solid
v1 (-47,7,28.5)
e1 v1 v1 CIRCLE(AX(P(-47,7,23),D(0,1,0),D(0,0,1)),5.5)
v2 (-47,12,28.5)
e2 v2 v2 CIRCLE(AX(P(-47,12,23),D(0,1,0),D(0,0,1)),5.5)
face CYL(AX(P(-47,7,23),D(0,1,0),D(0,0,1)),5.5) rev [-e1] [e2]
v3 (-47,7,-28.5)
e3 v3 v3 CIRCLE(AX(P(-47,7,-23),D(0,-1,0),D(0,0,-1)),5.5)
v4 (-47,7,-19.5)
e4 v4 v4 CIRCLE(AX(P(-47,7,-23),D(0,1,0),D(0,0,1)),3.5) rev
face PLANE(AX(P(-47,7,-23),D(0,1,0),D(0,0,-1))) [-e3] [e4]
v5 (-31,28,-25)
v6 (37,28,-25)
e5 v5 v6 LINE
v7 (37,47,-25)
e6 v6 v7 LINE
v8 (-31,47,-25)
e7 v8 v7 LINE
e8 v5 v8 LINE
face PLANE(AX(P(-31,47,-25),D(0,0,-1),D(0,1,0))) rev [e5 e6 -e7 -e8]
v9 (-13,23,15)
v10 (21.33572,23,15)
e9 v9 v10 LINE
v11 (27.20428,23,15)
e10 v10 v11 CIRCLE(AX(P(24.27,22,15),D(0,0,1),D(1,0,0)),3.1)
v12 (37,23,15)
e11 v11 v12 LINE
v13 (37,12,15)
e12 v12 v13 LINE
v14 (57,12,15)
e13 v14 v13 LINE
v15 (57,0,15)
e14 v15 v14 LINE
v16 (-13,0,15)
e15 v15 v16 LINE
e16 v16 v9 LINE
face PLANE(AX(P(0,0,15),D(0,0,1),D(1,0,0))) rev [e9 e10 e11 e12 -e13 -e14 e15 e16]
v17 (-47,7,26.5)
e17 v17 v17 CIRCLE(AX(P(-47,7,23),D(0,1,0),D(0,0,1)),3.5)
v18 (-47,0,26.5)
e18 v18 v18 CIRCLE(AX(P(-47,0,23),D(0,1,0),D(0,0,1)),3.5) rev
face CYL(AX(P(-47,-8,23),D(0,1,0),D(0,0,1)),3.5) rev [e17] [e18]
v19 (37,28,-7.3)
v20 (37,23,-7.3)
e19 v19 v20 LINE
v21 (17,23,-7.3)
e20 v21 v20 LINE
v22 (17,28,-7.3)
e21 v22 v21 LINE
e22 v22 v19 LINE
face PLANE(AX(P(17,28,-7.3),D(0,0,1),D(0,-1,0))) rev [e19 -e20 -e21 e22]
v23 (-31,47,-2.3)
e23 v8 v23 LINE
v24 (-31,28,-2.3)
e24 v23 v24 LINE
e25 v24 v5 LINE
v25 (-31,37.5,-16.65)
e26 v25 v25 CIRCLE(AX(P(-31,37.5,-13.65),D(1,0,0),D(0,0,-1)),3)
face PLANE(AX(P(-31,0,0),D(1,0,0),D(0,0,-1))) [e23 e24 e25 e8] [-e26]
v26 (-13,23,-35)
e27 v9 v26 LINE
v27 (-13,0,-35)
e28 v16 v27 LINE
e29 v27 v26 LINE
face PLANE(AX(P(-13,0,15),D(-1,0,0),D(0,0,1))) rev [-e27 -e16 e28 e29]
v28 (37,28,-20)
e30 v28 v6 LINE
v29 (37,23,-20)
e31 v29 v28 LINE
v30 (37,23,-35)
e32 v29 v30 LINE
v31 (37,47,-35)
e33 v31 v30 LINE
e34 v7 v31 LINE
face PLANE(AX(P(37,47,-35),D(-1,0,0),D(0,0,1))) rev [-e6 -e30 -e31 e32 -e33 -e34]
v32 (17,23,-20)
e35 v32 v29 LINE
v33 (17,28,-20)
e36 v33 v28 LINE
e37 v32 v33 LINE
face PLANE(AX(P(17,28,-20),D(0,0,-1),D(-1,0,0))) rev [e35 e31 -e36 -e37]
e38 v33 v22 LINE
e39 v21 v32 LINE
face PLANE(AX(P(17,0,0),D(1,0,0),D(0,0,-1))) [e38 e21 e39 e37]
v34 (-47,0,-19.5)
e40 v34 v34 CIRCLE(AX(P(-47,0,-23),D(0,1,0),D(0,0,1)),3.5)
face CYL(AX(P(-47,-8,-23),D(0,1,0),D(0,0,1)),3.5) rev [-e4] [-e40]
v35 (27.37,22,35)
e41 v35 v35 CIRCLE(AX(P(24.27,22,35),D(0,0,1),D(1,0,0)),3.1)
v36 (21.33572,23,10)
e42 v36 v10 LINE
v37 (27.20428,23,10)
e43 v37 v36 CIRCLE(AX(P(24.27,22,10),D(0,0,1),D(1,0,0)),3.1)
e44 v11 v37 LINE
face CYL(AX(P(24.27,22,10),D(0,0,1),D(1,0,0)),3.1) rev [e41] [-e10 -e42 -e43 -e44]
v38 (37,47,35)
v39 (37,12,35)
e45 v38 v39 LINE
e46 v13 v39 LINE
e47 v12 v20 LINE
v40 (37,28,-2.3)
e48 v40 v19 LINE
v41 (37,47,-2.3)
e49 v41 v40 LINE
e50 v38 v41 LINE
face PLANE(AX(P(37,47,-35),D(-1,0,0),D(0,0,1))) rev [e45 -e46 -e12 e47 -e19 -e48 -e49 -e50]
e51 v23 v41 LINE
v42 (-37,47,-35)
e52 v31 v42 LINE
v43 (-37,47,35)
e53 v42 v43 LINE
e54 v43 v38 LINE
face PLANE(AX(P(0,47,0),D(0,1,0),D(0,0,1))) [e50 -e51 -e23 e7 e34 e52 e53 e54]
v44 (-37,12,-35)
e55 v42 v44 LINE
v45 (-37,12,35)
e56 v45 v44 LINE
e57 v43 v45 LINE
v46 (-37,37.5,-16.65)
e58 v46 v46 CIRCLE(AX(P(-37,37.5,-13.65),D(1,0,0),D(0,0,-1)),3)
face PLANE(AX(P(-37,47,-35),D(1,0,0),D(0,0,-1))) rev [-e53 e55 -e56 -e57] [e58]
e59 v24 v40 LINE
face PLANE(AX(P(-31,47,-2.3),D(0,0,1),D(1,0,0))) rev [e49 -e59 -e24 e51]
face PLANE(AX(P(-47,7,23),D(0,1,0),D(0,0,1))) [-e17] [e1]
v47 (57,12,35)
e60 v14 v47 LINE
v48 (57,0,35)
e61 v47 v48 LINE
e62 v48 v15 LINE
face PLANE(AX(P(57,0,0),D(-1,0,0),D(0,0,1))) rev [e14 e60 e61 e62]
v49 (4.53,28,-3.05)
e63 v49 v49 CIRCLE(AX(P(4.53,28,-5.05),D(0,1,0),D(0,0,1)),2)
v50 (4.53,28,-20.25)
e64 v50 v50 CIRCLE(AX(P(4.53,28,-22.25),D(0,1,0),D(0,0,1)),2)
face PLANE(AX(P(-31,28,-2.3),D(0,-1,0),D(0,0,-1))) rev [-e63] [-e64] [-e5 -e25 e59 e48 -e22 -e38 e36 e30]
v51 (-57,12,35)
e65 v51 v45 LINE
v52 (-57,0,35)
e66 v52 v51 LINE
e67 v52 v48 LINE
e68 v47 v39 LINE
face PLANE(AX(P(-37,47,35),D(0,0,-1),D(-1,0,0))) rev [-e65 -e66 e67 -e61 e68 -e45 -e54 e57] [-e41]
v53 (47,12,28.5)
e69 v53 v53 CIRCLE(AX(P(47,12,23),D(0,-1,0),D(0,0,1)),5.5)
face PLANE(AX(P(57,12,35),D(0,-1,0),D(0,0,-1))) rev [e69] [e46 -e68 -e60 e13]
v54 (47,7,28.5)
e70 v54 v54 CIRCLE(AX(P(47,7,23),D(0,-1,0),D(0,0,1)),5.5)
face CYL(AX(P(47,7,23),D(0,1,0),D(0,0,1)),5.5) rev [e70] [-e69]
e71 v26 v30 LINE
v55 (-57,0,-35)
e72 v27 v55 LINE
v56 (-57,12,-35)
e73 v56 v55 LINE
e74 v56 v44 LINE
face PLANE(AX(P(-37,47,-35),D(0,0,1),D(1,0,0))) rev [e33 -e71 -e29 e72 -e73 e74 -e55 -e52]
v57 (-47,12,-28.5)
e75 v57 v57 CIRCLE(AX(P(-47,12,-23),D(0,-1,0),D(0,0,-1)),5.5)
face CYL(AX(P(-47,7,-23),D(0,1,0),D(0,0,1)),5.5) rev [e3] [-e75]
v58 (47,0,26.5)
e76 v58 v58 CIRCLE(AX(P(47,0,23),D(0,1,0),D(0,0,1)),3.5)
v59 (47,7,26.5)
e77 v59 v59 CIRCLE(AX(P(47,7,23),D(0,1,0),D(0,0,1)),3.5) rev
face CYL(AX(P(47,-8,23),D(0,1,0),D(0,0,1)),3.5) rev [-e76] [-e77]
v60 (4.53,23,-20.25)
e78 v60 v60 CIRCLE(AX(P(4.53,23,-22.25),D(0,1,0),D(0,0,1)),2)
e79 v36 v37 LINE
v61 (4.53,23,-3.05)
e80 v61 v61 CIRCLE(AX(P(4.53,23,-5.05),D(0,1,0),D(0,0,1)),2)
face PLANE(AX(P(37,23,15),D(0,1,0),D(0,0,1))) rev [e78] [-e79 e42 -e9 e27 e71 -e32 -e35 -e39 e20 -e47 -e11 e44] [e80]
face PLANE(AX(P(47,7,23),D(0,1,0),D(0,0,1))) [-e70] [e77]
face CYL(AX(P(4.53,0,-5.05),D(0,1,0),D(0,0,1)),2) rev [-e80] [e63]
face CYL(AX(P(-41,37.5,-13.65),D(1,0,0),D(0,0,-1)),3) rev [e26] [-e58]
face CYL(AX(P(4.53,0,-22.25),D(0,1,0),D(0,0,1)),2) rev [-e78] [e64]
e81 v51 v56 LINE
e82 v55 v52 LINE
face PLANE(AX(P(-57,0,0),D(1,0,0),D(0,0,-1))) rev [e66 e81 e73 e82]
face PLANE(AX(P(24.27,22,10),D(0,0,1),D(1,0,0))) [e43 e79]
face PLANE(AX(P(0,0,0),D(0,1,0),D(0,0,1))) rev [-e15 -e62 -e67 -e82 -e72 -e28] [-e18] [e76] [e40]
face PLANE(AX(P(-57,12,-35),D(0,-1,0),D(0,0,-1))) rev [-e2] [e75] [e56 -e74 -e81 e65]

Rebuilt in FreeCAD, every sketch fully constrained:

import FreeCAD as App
import Part
import Sketcher

V = App.Vector
Q = App.Units.Quantity


def add_polygon(sketch, points):
    """Adds a closed chain of lines whose ends are joined by coincident constraints."""
    first, n = sketch.GeometryCount, len(points)
    for a, b in zip(points, points[1:] + points[:1]):
        sketch.addGeometry(Part.LineSegment(App.Vector(*a, 0), App.Vector(*b, 0)), False)
    for i in range(n):
        sketch.addConstraint(Sketcher.Constraint("Coincident", first + i, 2, first + (i + 1) % n, 1))

doc = App.newDocument("Part")
body = doc.addObject("PartDesign::Body", "Body")

sketch1 = body.newObject("Sketcher::SketchObject", "Sketch")
sketch1.AttachmentSupport = (doc.getObject("XZ_Plane"), [""])
sketch1.MapMode = "FlatFace"
add_polygon(sketch1, [(-37, -35), (-37, 35), (37, 35), (37, -35)])
sketch1.addConstraint([
    Sketcher.Constraint("Vertical", 0),
    Sketcher.Constraint("Horizontal", 1),
    Sketcher.Constraint("Vertical", 2),
    Sketcher.Constraint("Horizontal", 3),
    Sketcher.Constraint("Symmetric", 0, 2, 2, 2, -1, 1),
    Sketcher.Constraint("DistanceX", 1, 1, 1, 2, Q("74 mm")),
    Sketcher.Constraint("DistanceY", 0, 1, 0, 2, Q("70 mm")),
])
pad1 = body.newObject("PartDesign::Pad", "Pad")
pad1.Profile = sketch1
pad1.Length = 47
pad1.Reversed = True

sketch2 = body.newObject("Sketcher::SketchObject", "Sketch001")
sketch2.AttachmentSupport = (doc.getObject("YZ_Plane"), [""])
sketch2.MapMode = "FlatFace"
sketch2.AttachmentOffset = App.Placement(V(0, 0, 37), App.Rotation())
add_polygon(sketch2, [(47, -2), (28, -2), (28, -25), (47, -25)])
sketch2.addConstraint([
    Sketcher.Constraint("Horizontal", 0),
    Sketcher.Constraint("Vertical", 1),
    Sketcher.Constraint("Horizontal", 2),
    Sketcher.Constraint("Vertical", 3),
    Sketcher.Constraint("DistanceX", 0, 2, 0, 1, Q("19 mm")),
    Sketcher.Constraint("DistanceY", 1, 2, 1, 1, Q("22.7 mm")),
    Sketcher.Constraint("DistanceX", -1, 1, 0, 2, Q("28 mm")),
    Sketcher.Constraint("DistanceY", 1, 2, -1, 1, Q("25 mm")),
])
pocket1 = body.newObject("PartDesign::Pocket", "Pocket")
pocket1.Profile = sketch2
pocket1.Length = 68

sketch3 = body.newObject("Sketcher::SketchObject", "Sketch002")
sketch3.AttachmentSupport = (doc.getObject("XY_Plane"), [""])
sketch3.MapMode = "FlatFace"
sketch3.AttachmentOffset = App.Placement(V(0, 0, -35), App.Rotation())
add_polygon(sketch3, [(37, 23), (37, 0), (-13, 0), (-13, 23)])
sketch3.addConstraint([
    Sketcher.Constraint("Vertical", 0),
    Sketcher.Constraint("Horizontal", 1),
    Sketcher.Constraint("Vertical", 2),
    Sketcher.Constraint("Horizontal", 3),
    Sketcher.Constraint("PointOnObject", 0, 2, -1),
    Sketcher.Constraint("DistanceX", 1, 2, 1, 1, Q("50 mm")),
    Sketcher.Constraint("DistanceY", 0, 2, 0, 1, Q("23 mm")),
    Sketcher.Constraint("DistanceX", -1, 1, 0, 2, Q("37 mm")),
])
pocket2 = body.newObject("PartDesign::Pocket", "Pocket001")
pocket2.Profile = sketch3
pocket2.Length = 50
pocket2.Reversed = True

sketch4 = body.newObject("Sketcher::SketchObject", "Sketch003")
sketch4.AttachmentSupport = (doc.getObject("XY_Plane"), [""])
sketch4.MapMode = "FlatFace"
sketch4.AttachmentOffset = App.Placement(V(0, 0, 35), App.Rotation())
sketch4.addGeometry(Part.Circle(V(24.3, 22, 0), V(0, 0, 1), 3.1), False)
sketch4.addConstraint([
    Sketcher.Constraint("Diameter", 0, Q("6.2 mm")),
    Sketcher.Constraint("DistanceY", -1, 1, 0, 3, Q("22 mm")),
    Sketcher.Constraint("DistanceX", -1, 1, 0, 3, Q("24.27 mm")),
])
pocket3 = body.newObject("PartDesign::Pocket", "Pocket002")
pocket3.Profile = sketch4
pocket3.Length = 25

sketch5 = body.newObject("Sketcher::SketchObject", "Sketch004")
sketch5.AttachmentSupport = (doc.getObject("YZ_Plane"), [""])
sketch5.MapMode = "FlatFace"
sketch5.AttachmentOffset = App.Placement(V(0, 0, 37), App.Rotation())
add_polygon(sketch5, [(12, 35), (0, 35), (0, 15), (12, 15)])
sketch5.addConstraint([
    Sketcher.Constraint("Horizontal", 0),
    Sketcher.Constraint("Vertical", 1),
    Sketcher.Constraint("Horizontal", 2),
    Sketcher.Constraint("Vertical", 3),
    Sketcher.Constraint("PointOnObject", 0, 2, -2),
    Sketcher.Constraint("DistanceX", 0, 2, 0, 1, Q("12 mm")),
    Sketcher.Constraint("DistanceY", 1, 2, 1, 1, Q("20 mm")),
    Sketcher.Constraint("DistanceY", -1, 1, 0, 2, Q("35 mm")),
])
pad2 = body.newObject("PartDesign::Pad", "Pad001")
pad2.Profile = sketch5
pad2.Length = 20

sketch6 = body.newObject("Sketcher::SketchObject", "Sketch005")
sketch6.AttachmentSupport = (doc.getObject("YZ_Plane"), [""])
sketch6.MapMode = "FlatFace"
sketch6.AttachmentOffset = App.Placement(V(0, 0, -37), App.Rotation())
add_polygon(sketch6, [(12, -35), (0, -35), (0, 35), (12, 35)])
sketch6.addConstraint([
    Sketcher.Constraint("Horizontal", 0),
    Sketcher.Constraint("Vertical", 1),
    Sketcher.Constraint("Horizontal", 2),
    Sketcher.Constraint("Vertical", 3),
    Sketcher.Constraint("Symmetric", 0, 2, 1, 2, -1, 1),
    Sketcher.Constraint("DistanceX", 0, 2, 0, 1, Q("12 mm")),
    Sketcher.Constraint("DistanceY", 1, 1, 1, 2, Q("70 mm")),
])
pad3 = body.newObject("PartDesign::Pad", "Pad002")
pad3.Profile = sketch6
pad3.Length = 20
pad3.Reversed = True

sketch7 = body.newObject("Sketcher::SketchObject", "Sketch006")
sketch7.AttachmentSupport = (doc.getObject("XZ_Plane"), [""])
sketch7.MapMode = "FlatFace"
sketch7.AttachmentOffset = App.Placement(V(0, 0, -12), App.Rotation())
sketch7.addGeometry(Part.Circle(V(-47, -23, 0), V(0, 0, 1), 3.5), False)
sketch7.addConstraint([
    Sketcher.Constraint("Diameter", 0, Q("7 mm")),
    Sketcher.Constraint("DistanceX", 0, 3, -1, 1, Q("47 mm")),
    Sketcher.Constraint("DistanceY", 0, 3, -1, 1, Q("23 mm")),
])
pocket4 = body.newObject("PartDesign::Pocket", "Pocket003")
pocket4.Profile = sketch7
pocket4.Length = 20
pocket4.Reversed = True
doc.recompute()

mirrored = body.newObject("PartDesign::Mirrored", "Mirrored")
mirrored.Originals = [pocket4]
mirrored.MirrorPlane = (doc.getObject("XY_Plane"), [""])
body.Tip = mirrored
doc.recompute()

mirrored2 = body.newObject("PartDesign::Mirrored", "Mirrored001")
mirrored2.Originals = [pocket4]
mirrored2.MirrorPlane = (doc.getObject("YZ_Plane"), [""])
body.Tip = mirrored2

sketch8 = body.newObject("Sketcher::SketchObject", "Sketch007")
sketch8.AttachmentSupport = (doc.getObject("XZ_Plane"), [""])
sketch8.MapMode = "FlatFace"
sketch8.AttachmentOffset = App.Placement(V(0, 0, -12), App.Rotation())
sketch8.addGeometry(Part.Circle(V(47, 23, 0), V(0, 0, 1), 3.5), False)
sketch8.addConstraint([
    Sketcher.Constraint("Diameter", 0, Q("7 mm")),
    Sketcher.Constraint("DistanceX", -1, 1, 0, 3, Q("47 mm")),
    Sketcher.Constraint("DistanceY", -1, 1, 0, 3, Q("23 mm")),
])
pocket5 = body.newObject("PartDesign::Pocket", "Pocket004")
pocket5.Profile = sketch8
pocket5.Length = 20
pocket5.Reversed = True

sketch9 = body.newObject("Sketcher::SketchObject", "Sketch008")
sketch9.AttachmentSupport = (doc.getObject("XZ_Plane"), [""])
sketch9.MapMode = "FlatFace"
sketch9.AttachmentOffset = App.Placement(V(0, 0, -12), App.Rotation())
sketch9.addGeometry(Part.Circle(V(-47, 23, 0), V(0, 0, 1), 6), False)
sketch9.addConstraint([
    Sketcher.Constraint("Diameter", 0, Q("11 mm")),
    Sketcher.Constraint("DistanceX", 0, 3, -1, 1, Q("47 mm")),
    Sketcher.Constraint("DistanceY", -1, 1, 0, 3, Q("23 mm")),
])
pocket6 = body.newObject("PartDesign::Pocket", "Pocket005")
pocket6.Profile = sketch9
pocket6.Length = 5
pocket6.Reversed = True
doc.recompute()

mirrored3 = body.newObject("PartDesign::Mirrored", "Mirrored002")
mirrored3.Originals = [pocket6]
mirrored3.MirrorPlane = (doc.getObject("XY_Plane"), [""])
body.Tip = mirrored3
doc.recompute()

mirrored4 = body.newObject("PartDesign::Mirrored", "Mirrored003")
mirrored4.Originals = [pocket6]
mirrored4.MirrorPlane = (doc.getObject("YZ_Plane"), [""])
body.Tip = mirrored4

sketch10 = body.newObject("Sketcher::SketchObject", "Sketch009")
sketch10.AttachmentSupport = (doc.getObject("YZ_Plane"), [""])
sketch10.MapMode = "FlatFace"
sketch10.AttachmentOffset = App.Placement(V(0, 0, -31), App.Rotation())
sketch10.addGeometry(Part.Circle(V(37.5, -13.7, 0), V(0, 0, 1), 3), False)
sketch10.addConstraint([
    Sketcher.Constraint("Diameter", 0, Q("6 mm")),
    Sketcher.Constraint("DistanceX", -1, 1, 0, 3, Q("37.5 mm")),
    Sketcher.Constraint("DistanceY", 0, 3, -1, 1, Q("13.65 mm")),
])
pocket7 = body.newObject("PartDesign::Pocket", "Pocket006")
pocket7.Profile = sketch10
pocket7.Length = 10

sketch11 = body.newObject("Sketcher::SketchObject", "Sketch010")
sketch11.AttachmentSupport = (doc.getObject("YZ_Plane"), [""])
sketch11.MapMode = "FlatFace"
sketch11.AttachmentOffset = App.Placement(V(0, 0, 37), App.Rotation())
add_polygon(sketch11, [(28, -7), (23, -7), (23, -20), (28, -20)])
sketch11.addConstraint([
    Sketcher.Constraint("Horizontal", 0),
    Sketcher.Constraint("Vertical", 1),
    Sketcher.Constraint("Horizontal", 2),
    Sketcher.Constraint("Vertical", 3),
    Sketcher.Constraint("DistanceX", 0, 2, 0, 1, Q("5 mm")),
    Sketcher.Constraint("DistanceY", 1, 2, 1, 1, Q("12.7 mm")),
    Sketcher.Constraint("DistanceX", -1, 1, 0, 2, Q("23 mm")),
    Sketcher.Constraint("DistanceY", 1, 2, -1, 1, Q("20 mm")),
])
pocket8 = body.newObject("PartDesign::Pocket", "Pocket007")
pocket8.Profile = sketch11
pocket8.Length = 20

sketch12 = body.newObject("Sketcher::SketchObject", "Sketch011")
sketch12.AttachmentSupport = (doc.getObject("XZ_Plane"), [""])
sketch12.MapMode = "FlatFace"
sketch12.AttachmentOffset = App.Placement(V(0, 0, -28), App.Rotation())
sketch12.addGeometry([
    Part.Circle(V(4.5, -5, 0), V(0, 0, 1), 2),
    Part.Circle(V(4.5, -22.2, 0), V(0, 0, 1), 2),
], False)
sketch12.addConstraint([
    Sketcher.Constraint("Equal", 0, 1),
    Sketcher.Constraint("Vertical", 0, 3, 1, 3),
    Sketcher.Constraint("Diameter", 0, Q("4 mm")),
    Sketcher.Constraint("DistanceY", 1, 3, 0, 3, Q("17.2 mm")),
    Sketcher.Constraint("DistanceX", -1, 1, 0, 3, Q("4.53 mm")),
    Sketcher.Constraint("DistanceY", 0, 3, -1, 1, Q("5.05 mm")),
])
pocket9 = body.newObject("PartDesign::Pocket", "Pocket008")
pocket9.Profile = sketch12
pocket9.Type = "ThroughAll"
pocket9.Reversed = True

doc.recompute()
